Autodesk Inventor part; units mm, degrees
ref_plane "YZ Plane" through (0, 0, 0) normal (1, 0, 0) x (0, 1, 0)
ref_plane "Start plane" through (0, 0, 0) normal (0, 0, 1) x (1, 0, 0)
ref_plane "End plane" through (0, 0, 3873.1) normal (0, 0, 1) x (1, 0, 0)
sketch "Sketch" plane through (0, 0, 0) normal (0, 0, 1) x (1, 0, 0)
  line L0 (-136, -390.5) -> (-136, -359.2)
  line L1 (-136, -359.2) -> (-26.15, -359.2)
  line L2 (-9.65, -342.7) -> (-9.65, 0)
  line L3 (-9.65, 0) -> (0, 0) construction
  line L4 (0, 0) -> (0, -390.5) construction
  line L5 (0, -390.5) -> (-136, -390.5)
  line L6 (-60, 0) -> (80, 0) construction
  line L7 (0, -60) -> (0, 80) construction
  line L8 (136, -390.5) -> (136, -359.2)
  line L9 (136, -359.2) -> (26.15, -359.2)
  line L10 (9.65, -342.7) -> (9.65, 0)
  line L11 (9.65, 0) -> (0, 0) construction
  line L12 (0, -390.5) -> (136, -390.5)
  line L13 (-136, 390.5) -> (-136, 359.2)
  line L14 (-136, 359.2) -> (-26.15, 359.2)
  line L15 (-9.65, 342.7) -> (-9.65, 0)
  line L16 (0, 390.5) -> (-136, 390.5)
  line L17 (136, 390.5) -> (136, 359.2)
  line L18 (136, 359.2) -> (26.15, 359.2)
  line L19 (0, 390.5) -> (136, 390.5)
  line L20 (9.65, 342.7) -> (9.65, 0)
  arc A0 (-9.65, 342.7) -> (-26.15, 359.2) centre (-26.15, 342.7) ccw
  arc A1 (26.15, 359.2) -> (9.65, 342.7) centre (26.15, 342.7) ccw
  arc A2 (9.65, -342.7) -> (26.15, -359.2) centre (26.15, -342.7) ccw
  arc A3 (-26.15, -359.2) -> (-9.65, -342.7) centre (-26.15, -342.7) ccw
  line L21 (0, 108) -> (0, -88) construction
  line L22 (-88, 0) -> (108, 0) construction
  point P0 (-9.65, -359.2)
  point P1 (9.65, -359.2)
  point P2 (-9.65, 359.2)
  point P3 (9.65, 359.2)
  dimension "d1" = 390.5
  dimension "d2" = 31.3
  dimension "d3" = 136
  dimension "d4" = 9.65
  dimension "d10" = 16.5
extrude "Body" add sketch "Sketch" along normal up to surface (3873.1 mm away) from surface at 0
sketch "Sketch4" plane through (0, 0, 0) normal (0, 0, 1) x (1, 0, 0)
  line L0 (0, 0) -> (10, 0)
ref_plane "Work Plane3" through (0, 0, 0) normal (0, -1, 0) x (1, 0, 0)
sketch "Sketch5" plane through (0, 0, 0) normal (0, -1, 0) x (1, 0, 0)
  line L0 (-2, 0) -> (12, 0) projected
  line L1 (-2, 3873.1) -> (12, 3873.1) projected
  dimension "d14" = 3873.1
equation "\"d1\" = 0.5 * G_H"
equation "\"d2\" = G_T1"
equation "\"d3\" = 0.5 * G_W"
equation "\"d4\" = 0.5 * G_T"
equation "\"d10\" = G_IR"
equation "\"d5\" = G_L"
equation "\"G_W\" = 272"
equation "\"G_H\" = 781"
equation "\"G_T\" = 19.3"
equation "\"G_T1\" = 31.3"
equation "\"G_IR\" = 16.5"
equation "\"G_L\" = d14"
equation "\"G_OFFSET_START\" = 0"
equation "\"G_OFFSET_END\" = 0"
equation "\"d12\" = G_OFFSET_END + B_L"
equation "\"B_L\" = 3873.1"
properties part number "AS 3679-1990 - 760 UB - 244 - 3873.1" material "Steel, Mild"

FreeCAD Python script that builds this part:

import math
import FreeCAD as App
import Part
import Sketcher
from FreeCAD import Vector

doc = App.newDocument("Part")
body = doc.addObject("PartDesign::Body", "Body")

sketch1 = doc.addObject("Sketcher::SketchObject", "Sketch")
body.addObject(sketch1)
sketch1.AttachmentSupport = (doc.XY_Plane, [""])
sketch1.MapMode = "FlatFace"
sketch1.addGeometry([
    Part.LineSegment(Vector(-136, -359, 0), Vector(-136, -390, 0)),
    Part.LineSegment(Vector(-136, -390, 0), Vector(136, -390, 0)),
    Part.LineSegment(Vector(136, -390, 0), Vector(136, -359, 0)),
    Part.LineSegment(Vector(136, -359, 0), Vector(26, -359, 0)),
    Part.ArcOfCircle(Part.Circle(Vector(26, -343, 0), Vector(0, 0, 1), 16), math.radians(180), math.radians(270)),
    Part.LineSegment(Vector(10, -343, 0), Vector(10, 343, 0)),
    Part.ArcOfCircle(Part.Circle(Vector(26, 343, 0), Vector(0, 0, 1), 16), math.radians(90), math.radians(180)),
    Part.LineSegment(Vector(26, 359, 0), Vector(136, 359, 0)),
    Part.LineSegment(Vector(136, 359, 0), Vector(136, 390, 0)),
    Part.LineSegment(Vector(136, 390, 0), Vector(-136, 390, 0)),
    Part.LineSegment(Vector(-136, 390, 0), Vector(-136, 359, 0)),
    Part.LineSegment(Vector(-136, 359, 0), Vector(-26, 359, 0)),
    Part.ArcOfCircle(Part.Circle(Vector(-26, 343, 0), Vector(0, 0, 1), 16), math.radians(0), math.radians(90)),
    Part.LineSegment(Vector(-10, 343, 0), Vector(-10, -343, 0)),
    Part.ArcOfCircle(Part.Circle(Vector(-26, -343, 0), Vector(0, 0, 1), 16), math.radians(-90), math.radians(0)),
    Part.LineSegment(Vector(-26, -359, 0), Vector(-136, -359, 0)),
], False)
sketch1.addConstraint([
    Sketcher.Constraint("Coincident", 0, 2, 1, 1),
    Sketcher.Constraint("Coincident", 1, 2, 2, 1),
    Sketcher.Constraint("Coincident", 2, 2, 3, 1),
    Sketcher.Constraint("Tangent", 3, 2, 4, 2),
    Sketcher.Constraint("Tangent", 4, 1, 5, 1),
    Sketcher.Constraint("Tangent", 5, 2, 6, 2),
    Sketcher.Constraint("Tangent", 6, 1, 7, 1),
    Sketcher.Constraint("Coincident", 7, 2, 8, 1),
    Sketcher.Constraint("Coincident", 8, 2, 9, 1),
    Sketcher.Constraint("Coincident", 9, 2, 10, 1),
    Sketcher.Constraint("Coincident", 10, 2, 11, 1),
    Sketcher.Constraint("Tangent", 11, 2, 12, 2),
    Sketcher.Constraint("Tangent", 12, 1, 13, 1),
    Sketcher.Constraint("Tangent", 13, 2, 14, 2),
    Sketcher.Constraint("Tangent", 14, 1, 15, 1),
    Sketcher.Constraint("Coincident", 15, 2, 0, 1),
    Sketcher.Constraint("Vertical", 0),
    Sketcher.Constraint("Horizontal", 1),
    Sketcher.Constraint("Vertical", 2),
    Sketcher.Constraint("Horizontal", 3),
    Sketcher.Constraint("Vertical", 5),
    Sketcher.Constraint("Horizontal", 7),
    Sketcher.Constraint("Vertical", 8),
    Sketcher.Constraint("Horizontal", 9),
    Sketcher.Constraint("Vertical", 10),
    Sketcher.Constraint("Horizontal", 11),
    Sketcher.Constraint("Vertical", 13),
    Sketcher.Constraint("Horizontal", 15),
    Sketcher.Constraint("Equal", 4, 6),
    Sketcher.Constraint("Equal", 6, 12),
    Sketcher.Constraint("Equal", 12, 14),
    Sketcher.Constraint("Symmetric", 4, 3, 12, 3, -1, 1),
    Sketcher.Constraint("Symmetric", 0, 2, 8, 2, -1, 1),
    Sketcher.Constraint("Symmetric", 7, 2, 10, 2, -2),
    Sketcher.Constraint("Symmetric", 2, 2, 15, 2, -2),
    Sketcher.Constraint("Radius", 4, 16.5),
    Sketcher.Constraint("DistanceY", 0, 2, 0, 1, 31.3),
    Sketcher.Constraint("DistanceX", 0, 2, -1, 1, 136.0),
    Sketcher.Constraint("DistanceY", 0, 2, -1, 1, 390.5),
    Sketcher.Constraint("DistanceX", -1, 1, 4, 1, 9.65),
])
pad1 = doc.addObject("PartDesign::Pad", "Pad")
body.addObject(pad1)
pad1.Profile = sketch1
pad1.Length = 3873.1

doc.recompute()
